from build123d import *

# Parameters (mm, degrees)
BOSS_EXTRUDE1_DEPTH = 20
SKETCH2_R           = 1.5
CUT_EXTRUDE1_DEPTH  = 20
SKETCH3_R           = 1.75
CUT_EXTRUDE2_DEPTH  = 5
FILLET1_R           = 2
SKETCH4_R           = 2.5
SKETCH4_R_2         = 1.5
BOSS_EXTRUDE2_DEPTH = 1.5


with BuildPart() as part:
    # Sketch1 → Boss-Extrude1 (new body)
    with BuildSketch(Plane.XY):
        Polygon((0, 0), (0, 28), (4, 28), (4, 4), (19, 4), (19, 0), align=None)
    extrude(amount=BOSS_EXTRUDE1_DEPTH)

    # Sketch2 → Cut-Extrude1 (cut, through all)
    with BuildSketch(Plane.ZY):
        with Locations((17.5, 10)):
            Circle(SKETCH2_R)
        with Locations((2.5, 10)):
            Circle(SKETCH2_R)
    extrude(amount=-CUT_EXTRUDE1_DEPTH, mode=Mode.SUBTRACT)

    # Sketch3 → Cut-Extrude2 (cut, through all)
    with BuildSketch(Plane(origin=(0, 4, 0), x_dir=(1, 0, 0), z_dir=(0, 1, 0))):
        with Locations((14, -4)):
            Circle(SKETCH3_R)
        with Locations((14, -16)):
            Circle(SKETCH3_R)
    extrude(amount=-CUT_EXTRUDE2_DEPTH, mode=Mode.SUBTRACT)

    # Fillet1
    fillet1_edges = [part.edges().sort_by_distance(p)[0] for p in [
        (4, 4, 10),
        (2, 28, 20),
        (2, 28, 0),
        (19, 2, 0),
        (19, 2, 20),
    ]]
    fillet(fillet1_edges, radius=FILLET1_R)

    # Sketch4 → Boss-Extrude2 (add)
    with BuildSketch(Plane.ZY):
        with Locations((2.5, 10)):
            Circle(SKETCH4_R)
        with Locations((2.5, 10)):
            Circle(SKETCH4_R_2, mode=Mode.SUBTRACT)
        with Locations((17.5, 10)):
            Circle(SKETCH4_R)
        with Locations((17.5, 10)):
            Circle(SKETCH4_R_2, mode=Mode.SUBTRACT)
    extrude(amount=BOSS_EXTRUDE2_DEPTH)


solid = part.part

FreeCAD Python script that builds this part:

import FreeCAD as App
import Part
import Sketcher
from FreeCAD import Vector
Q = App.Units.Quantity


def edges_at(feature, points):
    """Names of the edges that pass closest to the given points."""
    edges = feature.Shape.Edges
    near = lambda p: min(range(len(edges)), key=lambda i: edges[i].distToShape(Part.Vertex(*p))[0])
    return sorted({f"Edge{near(p) + 1}" for p in points})


def add_polygon(sketch, points):
    """Adds a closed chain of lines whose ends are joined by coincident constraints."""
    first, n = sketch.GeometryCount, len(points)
    for a, b in zip(points, points[1:] + points[:1]):
        sketch.addGeometry(Part.LineSegment(App.Vector(*a, 0), App.Vector(*b, 0)), False)
    for i in range(n):
        sketch.addConstraint(Sketcher.Constraint("Coincident", first + i, 2, first + (i + 1) % n, 1))

doc = App.newDocument("Part")
body = doc.addObject("PartDesign::Body", "Body")

# Sketch on XY plane
sketch1 = body.newObject("Sketcher::SketchObject", "Sketch")
sketch1.AttachmentSupport = (doc.getObject("XY_Plane"), [""])
sketch1.MapMode = "FlatFace"
add_polygon(sketch1, [(0, 28), (0, 0), (19, 0), (19, 4), (4, 4), (4, 28)])  # lines 0-5
sketch1.addConstraint(Sketcher.Constraint("Vertical", 0))
sketch1.addConstraint(Sketcher.Constraint("Horizontal", 1))
sketch1.addConstraint(Sketcher.Constraint("Vertical", 2))
sketch1.addConstraint(Sketcher.Constraint("Horizontal", 3))
sketch1.addConstraint(Sketcher.Constraint("Vertical", 4))
sketch1.addConstraint(Sketcher.Constraint("Horizontal", 5))
sketch1.addConstraint(Sketcher.Constraint("Coincident", 0, 2, -1, 1))
sketch1.addConstraint(Sketcher.Constraint("Equal", 5, 2))
sketch1.addConstraint(Sketcher.Constraint("DistanceX", 1, 1, 1, 2, Q("19 mm")))
sketch1.addConstraint(Sketcher.Constraint("DistanceX", 3, 2, 3, 1, Q("15 mm")))
sketch1.addConstraint(Sketcher.Constraint("DistanceY", 0, 2, 0, 1, Q("28 mm")))
pad1 = body.newObject("PartDesign::Pad", "Pad")
pad1.Profile = sketch1
pad1.Length = 20

# Sketch on YZ plane
sketch2 = body.newObject("Sketcher::SketchObject", "Sketch001")
sketch2.AttachmentSupport = (doc.getObject("YZ_Plane"), [""])
sketch2.MapMode = "FlatFace"
sketch2.addGeometry(Part.Circle(Vector(10, 17.5, 0), Vector(0, 0, 1), 1.5), False)
sketch2.addGeometry(Part.Circle(Vector(10, 2.5, 0), Vector(0, 0, 1), 1.5), False)
sketch2.addConstraint(Sketcher.Constraint("Equal", 0, 1))
sketch2.addConstraint(Sketcher.Constraint("Vertical", 0, 3, 1, 3))
sketch2.addConstraint(Sketcher.Constraint("Diameter", 0, Q("3 mm")))
sketch2.addConstraint(Sketcher.Constraint("DistanceX", -1, 1, 0, 3, Q("10 mm")))
sketch2.addConstraint(Sketcher.Constraint("DistanceY", 1, 3, 0, 3, Q("15 mm")))
sketch2.addConstraint(Sketcher.Constraint("DistanceY", -1, 1, 0, 3, Q("17.5 mm")))
pocket1 = body.newObject("PartDesign::Pocket", "Pocket")
pocket1.Profile = sketch2
pocket1.Type = "ThroughAll"
pocket1.Reversed = True

# Sketch on XZ plane
sketch3 = body.newObject("Sketcher::SketchObject", "Sketch002")
sketch3.AttachmentSupport = (doc.getObject("XZ_Plane"), [""])
sketch3.MapMode = "FlatFace"
sketch3.AttachmentOffset = App.Placement(Vector(0, 0, -4), App.Rotation())
sketch3.addGeometry(Part.Circle(Vector(14, 4, 0), Vector(0, 0, 1), 1.8), False)
sketch3.addGeometry(Part.Circle(Vector(14, 16, 0), Vector(0, 0, 1), 1.8), False)
sketch3.addConstraint(Sketcher.Constraint("Equal", 0, 1))
sketch3.addConstraint(Sketcher.Constraint("Vertical", 0, 3, 1, 3))
sketch3.addConstraint(Sketcher.Constraint("Diameter", 0, Q("3.5 mm")))
sketch3.addConstraint(Sketcher.Constraint("DistanceX", -1, 1, 0, 3, Q("14 mm")))
sketch3.addConstraint(Sketcher.Constraint("DistanceY", -1, 1, 0, 3, Q("4 mm")))
sketch3.addConstraint(Sketcher.Constraint("DistanceY", -1, 1, 1, 3, Q("16 mm")))
pocket2 = body.newObject("PartDesign::Pocket", "Pocket001")
pocket2.Profile = sketch3
pocket2.Type = "ThroughAll"
pocket2.Reversed = True
doc.recompute()

fillet = body.newObject("PartDesign::Fillet", "Fillet")
fillet.Base = (pocket2, edges_at(pocket2, [
    (4, 4, 10),
    (2, 28, 20),
    (2, 28, 0),
    (19, 2, 0),
    (19, 2, 20),
]))
fillet.Radius = 2

# Sketch on YZ plane
sketch4 = body.newObject("Sketcher::SketchObject", "Sketch003")
sketch4.AttachmentSupport = (doc.getObject("YZ_Plane"), [""])
sketch4.MapMode = "FlatFace"
sketch4.addGeometry(Part.Circle(Vector(10, 2.5, 0), Vector(0, 0, 1), 2.5), False)
sketch4.addGeometry(Part.Circle(Vector(10, 2.5, 0), Vector(0, 0, 1), 1.5), False)
sketch4.addGeometry(Part.Circle(Vector(10, 17.5, 0), Vector(0, 0, 1), 2.5), False)
sketch4.addGeometry(Part.Circle(Vector(10, 17.5, 0), Vector(0, 0, 1), 1.5), False)
sketch4.addConstraint(Sketcher.Constraint("Coincident", 1, 3, 0, 3))
sketch4.addConstraint(Sketcher.Constraint("Coincident", 3, 3, 2, 3))
sketch4.addConstraint(Sketcher.Constraint("Equal", 0, 2))
sketch4.addConstraint(Sketcher.Constraint("Equal", 1, 3))
sketch4.addConstraint(Sketcher.Constraint("Vertical", 1, 3, 2, 3))
sketch4.addConstraint(Sketcher.Constraint("Diameter", 0, Q("5 mm")))
sketch4.addConstraint(Sketcher.Constraint("Diameter", 1, Q("3 mm")))
sketch4.addConstraint(Sketcher.Constraint("DistanceX", -1, 1, 0, 3, Q("10 mm")))
sketch4.addConstraint(Sketcher.Constraint("DistanceY", 0, 3, 2, 3, Q("15 mm")))
sketch4.addConstraint(Sketcher.Constraint("DistanceY", -1, 1, 0, 3, Q("2.5 mm")))
pad2 = body.newObject("PartDesign::Pad", "Pad001")
pad2.Profile = sketch4
pad2.Length = 1.5
pad2.Reversed = True

doc.recompute()
